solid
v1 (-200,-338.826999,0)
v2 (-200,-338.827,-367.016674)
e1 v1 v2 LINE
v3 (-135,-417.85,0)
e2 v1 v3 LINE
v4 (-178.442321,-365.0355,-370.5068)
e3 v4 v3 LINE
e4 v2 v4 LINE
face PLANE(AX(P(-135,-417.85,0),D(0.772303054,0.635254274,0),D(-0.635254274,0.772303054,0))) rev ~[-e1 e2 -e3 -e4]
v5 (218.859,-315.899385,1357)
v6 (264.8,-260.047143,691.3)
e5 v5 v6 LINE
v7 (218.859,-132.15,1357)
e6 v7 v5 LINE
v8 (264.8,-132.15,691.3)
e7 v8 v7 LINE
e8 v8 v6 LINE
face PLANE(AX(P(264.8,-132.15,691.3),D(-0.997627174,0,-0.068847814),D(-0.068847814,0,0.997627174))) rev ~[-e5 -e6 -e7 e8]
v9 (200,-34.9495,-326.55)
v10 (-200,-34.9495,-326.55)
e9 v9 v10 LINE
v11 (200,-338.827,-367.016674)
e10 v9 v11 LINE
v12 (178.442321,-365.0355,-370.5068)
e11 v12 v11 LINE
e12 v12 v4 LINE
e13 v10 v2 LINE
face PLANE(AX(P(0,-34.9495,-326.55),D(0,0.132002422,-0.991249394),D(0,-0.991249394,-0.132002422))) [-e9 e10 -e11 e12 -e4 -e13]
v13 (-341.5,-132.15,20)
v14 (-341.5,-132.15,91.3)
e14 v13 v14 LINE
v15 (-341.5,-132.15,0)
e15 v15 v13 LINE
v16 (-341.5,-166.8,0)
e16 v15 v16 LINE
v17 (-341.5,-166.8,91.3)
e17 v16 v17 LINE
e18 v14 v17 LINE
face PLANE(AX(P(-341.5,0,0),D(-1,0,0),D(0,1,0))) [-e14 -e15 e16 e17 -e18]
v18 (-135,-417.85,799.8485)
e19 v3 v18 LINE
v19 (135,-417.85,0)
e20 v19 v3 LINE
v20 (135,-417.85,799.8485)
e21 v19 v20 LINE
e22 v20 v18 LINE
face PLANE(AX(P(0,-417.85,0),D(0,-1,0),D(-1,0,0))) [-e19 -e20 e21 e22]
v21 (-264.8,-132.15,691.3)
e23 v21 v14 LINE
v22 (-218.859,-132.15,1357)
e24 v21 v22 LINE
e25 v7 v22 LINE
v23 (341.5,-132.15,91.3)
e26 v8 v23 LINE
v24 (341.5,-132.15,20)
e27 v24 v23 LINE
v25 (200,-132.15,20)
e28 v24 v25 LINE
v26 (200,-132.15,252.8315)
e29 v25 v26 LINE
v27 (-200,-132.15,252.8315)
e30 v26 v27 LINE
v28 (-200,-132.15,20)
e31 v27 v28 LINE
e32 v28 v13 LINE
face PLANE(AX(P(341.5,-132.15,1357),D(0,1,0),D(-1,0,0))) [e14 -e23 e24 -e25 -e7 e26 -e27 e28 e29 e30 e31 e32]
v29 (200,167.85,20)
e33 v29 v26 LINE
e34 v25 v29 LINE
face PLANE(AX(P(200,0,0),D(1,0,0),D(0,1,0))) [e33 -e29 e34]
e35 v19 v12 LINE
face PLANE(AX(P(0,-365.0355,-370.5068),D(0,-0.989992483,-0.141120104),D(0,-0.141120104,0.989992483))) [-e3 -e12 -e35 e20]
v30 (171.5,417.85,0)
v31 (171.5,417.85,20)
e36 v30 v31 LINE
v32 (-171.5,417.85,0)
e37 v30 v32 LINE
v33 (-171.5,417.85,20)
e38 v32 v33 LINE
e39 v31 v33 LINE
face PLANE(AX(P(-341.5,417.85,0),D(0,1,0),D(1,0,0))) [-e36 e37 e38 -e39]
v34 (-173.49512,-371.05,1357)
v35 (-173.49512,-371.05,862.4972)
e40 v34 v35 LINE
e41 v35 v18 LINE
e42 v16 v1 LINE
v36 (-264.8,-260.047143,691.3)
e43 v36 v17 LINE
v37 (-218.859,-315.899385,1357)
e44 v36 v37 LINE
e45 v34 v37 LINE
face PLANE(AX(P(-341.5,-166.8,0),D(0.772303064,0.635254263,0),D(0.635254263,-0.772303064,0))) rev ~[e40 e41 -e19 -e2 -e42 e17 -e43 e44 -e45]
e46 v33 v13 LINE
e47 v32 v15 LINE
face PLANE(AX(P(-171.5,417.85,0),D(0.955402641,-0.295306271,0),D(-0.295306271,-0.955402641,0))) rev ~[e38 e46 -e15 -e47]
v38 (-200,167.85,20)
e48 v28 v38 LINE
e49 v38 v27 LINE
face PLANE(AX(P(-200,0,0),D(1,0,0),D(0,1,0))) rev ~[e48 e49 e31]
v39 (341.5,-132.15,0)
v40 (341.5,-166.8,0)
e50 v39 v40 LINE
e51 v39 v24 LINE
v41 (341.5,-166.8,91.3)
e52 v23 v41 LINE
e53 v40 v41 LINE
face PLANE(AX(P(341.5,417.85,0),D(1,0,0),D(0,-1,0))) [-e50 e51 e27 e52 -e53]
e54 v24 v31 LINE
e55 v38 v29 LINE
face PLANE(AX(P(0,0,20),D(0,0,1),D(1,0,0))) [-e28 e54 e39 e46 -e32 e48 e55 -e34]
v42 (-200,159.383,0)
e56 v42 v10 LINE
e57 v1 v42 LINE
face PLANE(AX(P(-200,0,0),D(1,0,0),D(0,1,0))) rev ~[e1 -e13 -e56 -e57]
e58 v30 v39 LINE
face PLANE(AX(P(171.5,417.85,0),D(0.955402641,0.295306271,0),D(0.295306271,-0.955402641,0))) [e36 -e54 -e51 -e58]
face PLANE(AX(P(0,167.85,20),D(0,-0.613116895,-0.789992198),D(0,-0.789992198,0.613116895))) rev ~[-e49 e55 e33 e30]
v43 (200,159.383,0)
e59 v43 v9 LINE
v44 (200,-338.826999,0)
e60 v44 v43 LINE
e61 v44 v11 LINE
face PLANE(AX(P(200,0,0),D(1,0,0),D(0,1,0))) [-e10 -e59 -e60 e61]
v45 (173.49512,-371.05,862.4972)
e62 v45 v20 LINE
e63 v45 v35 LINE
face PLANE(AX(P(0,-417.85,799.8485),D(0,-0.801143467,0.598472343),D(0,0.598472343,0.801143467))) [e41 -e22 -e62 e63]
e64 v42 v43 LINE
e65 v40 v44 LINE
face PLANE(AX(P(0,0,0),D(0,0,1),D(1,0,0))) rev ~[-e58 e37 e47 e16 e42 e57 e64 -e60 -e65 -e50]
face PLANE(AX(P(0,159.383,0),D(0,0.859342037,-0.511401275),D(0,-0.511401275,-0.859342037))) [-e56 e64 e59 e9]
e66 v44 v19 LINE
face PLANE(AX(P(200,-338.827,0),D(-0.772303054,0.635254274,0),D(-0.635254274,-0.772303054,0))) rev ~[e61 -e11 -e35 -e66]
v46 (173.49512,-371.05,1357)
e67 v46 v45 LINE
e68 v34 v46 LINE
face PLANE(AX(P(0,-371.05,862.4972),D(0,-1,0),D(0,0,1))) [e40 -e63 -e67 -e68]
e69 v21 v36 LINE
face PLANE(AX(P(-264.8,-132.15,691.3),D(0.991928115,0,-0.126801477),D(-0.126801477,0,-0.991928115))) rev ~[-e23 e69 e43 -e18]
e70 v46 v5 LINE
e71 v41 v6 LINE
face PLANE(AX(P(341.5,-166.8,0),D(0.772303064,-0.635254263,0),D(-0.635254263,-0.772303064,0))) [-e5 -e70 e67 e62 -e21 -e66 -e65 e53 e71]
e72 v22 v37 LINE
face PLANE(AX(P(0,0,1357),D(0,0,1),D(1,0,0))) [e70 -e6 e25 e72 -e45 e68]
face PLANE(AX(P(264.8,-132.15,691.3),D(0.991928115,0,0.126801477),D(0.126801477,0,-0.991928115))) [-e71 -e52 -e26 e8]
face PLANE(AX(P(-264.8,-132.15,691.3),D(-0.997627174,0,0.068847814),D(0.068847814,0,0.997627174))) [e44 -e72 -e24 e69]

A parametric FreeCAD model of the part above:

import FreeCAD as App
import Part
import Sketcher

V = App.Vector
Q = App.Units.Quantity

doc = App.newDocument("Part")
body = doc.addObject("PartDesign::Body", "Body")

# Sketch on XY plane
sketch1 = doc.addObject("Sketcher::SketchObject", "Sketch")
body.addObject(sketch1)
sketch1.AttachmentSupport = (doc.XY_Plane, [""])
sketch1.MapMode = "FlatFace"
sketch1.addGeometry(Part.LineSegment(V(-342, 418, 0), V(-342, -418, 0)), False)
sketch1.addGeometry(Part.LineSegment(V(-342, -418, 0), V(342, -418, 0)), False)
sketch1.addGeometry(Part.LineSegment(V(342, -418, 0), V(342, 418, 0)), False)
sketch1.addGeometry(Part.LineSegment(V(342, 418, 0), V(-342, 418, 0)), False)
sketch1.addConstraint(Sketcher.Constraint("Coincident", 0, 2, 1, 1))
sketch1.addConstraint(Sketcher.Constraint("Coincident", 1, 2, 2, 1))
sketch1.addConstraint(Sketcher.Constraint("Coincident", 2, 2, 3, 1))
sketch1.addConstraint(Sketcher.Constraint("Coincident", 3, 2, 0, 1))
sketch1.addConstraint(Sketcher.Constraint("Vertical", 0))
sketch1.addConstraint(Sketcher.Constraint("Horizontal", 1))
sketch1.addConstraint(Sketcher.Constraint("Vertical", 2))
sketch1.addConstraint(Sketcher.Constraint("Horizontal", 3))
sketch1.addConstraint(Sketcher.Constraint("Symmetric", 0, 2, 2, 2, -1, 1))
sketch1.addConstraint(Sketcher.Constraint("DistanceX", 1, 1, 1, 2, Q("683 mm")))
sketch1.addConstraint(Sketcher.Constraint("DistanceY", 0, 2, 0, 1, Q("835.7 mm")))
pad1 = doc.addObject("PartDesign::Pad", "Pad")
body.addObject(pad1)
pad1.Profile = sketch1
pad1.Length = 1357

# Sketch on XY plane
sketch2 = doc.addObject("Sketcher::SketchObject", "Sketch001")
body.addObject(sketch2)
sketch2.AttachmentSupport = (doc.XY_Plane, [""])
sketch2.MapMode = "FlatFace"
sketch2.addGeometry(Part.LineSegment(V(-342, -132, 0), V(-172, 418, 0)), False)
sketch2.addGeometry(Part.LineSegment(V(-172, 418, 0), V(-342, 418, 0)), False)
sketch2.addGeometry(Part.LineSegment(V(-342, 418, 0), V(-342, -132, 0)), False)
sketch2.addGeometry(Part.LineSegment(V(342, 418, 0), V(172, 418, 0)), False)
sketch2.addGeometry(Part.LineSegment(V(172, 418, 0), V(342, -132, 0)), False)
sketch2.addGeometry(Part.LineSegment(V(342, -132, 0), V(342, 418, 0)), False)
sketch2.addGeometry(Part.LineSegment(V(-135, -418, 0), V(-342, -167, 0)), False)
sketch2.addGeometry(Part.LineSegment(V(-342, -167, 0), V(-342, -418, 0)), False)
sketch2.addGeometry(Part.LineSegment(V(-342, -418, 0), V(-135, -418, 0)), False)
sketch2.addGeometry(Part.LineSegment(V(342, -167, 0), V(135, -418, 0)), False)
sketch2.addGeometry(Part.LineSegment(V(135, -418, 0), V(342, -418, 0)), False)
sketch2.addGeometry(Part.LineSegment(V(342, -418, 0), V(342, -167, 0)), False)
sketch2.addConstraint(Sketcher.Constraint("Coincident", 0, 2, 1, 1))
sketch2.addConstraint(Sketcher.Constraint("Coincident", 1, 2, 2, 1))
sketch2.addConstraint(Sketcher.Constraint("Coincident", 2, 2, 0, 1))
sketch2.addConstraint(Sketcher.Constraint("Coincident", 3, 2, 4, 1))
sketch2.addConstraint(Sketcher.Constraint("Coincident", 4, 2, 5, 1))
sketch2.addConstraint(Sketcher.Constraint("Coincident", 5, 2, 3, 1))
sketch2.addConstraint(Sketcher.Constraint("Coincident", 6, 2, 7, 1))
sketch2.addConstraint(Sketcher.Constraint("Coincident", 7, 2, 8, 1))
sketch2.addConstraint(Sketcher.Constraint("Coincident", 8, 2, 6, 1))
sketch2.addConstraint(Sketcher.Constraint("Coincident", 9, 2, 10, 1))
sketch2.addConstraint(Sketcher.Constraint("Coincident", 10, 2, 11, 1))
sketch2.addConstraint(Sketcher.Constraint("Coincident", 11, 2, 9, 1))
sketch2.addConstraint(Sketcher.Constraint("Horizontal", 1))
sketch2.addConstraint(Sketcher.Constraint("Vertical", 2))
sketch2.addConstraint(Sketcher.Constraint("Horizontal", 3))
sketch2.addConstraint(Sketcher.Constraint("Vertical", 5))
sketch2.addConstraint(Sketcher.Constraint("Vertical", 7))
sketch2.addConstraint(Sketcher.Constraint("Horizontal", 8))
sketch2.addConstraint(Sketcher.Constraint("Horizontal", 10))
sketch2.addConstraint(Sketcher.Constraint("Vertical", 11))
sketch2.addConstraint(Sketcher.Constraint("Symmetric", 5, 2, 7, 2, -1, 1))
sketch2.addConstraint(Sketcher.Constraint("Symmetric", 1, 2, 10, 2, -1, 1))
sketch2.addConstraint(Sketcher.Constraint("Symmetric", 0, 2, 3, 2, -2))
sketch2.addConstraint(Sketcher.Constraint("Symmetric", 2, 2, 4, 2, -2))
sketch2.addConstraint(Sketcher.Constraint("Horizontal", 6, 2, 11, 2))
sketch2.addConstraint(Sketcher.Constraint("Equal", 8, 10))
sketch2.addConstraint(Sketcher.Constraint("DistanceY", 2, 2, 2, 1, Q("550 mm")))
sketch2.addConstraint(Sketcher.Constraint("DistanceX", 8, 1, 8, 2, Q("206.5 mm")))
sketch2.addConstraint(Sketcher.Constraint("DistanceX", 0, 2, 3, 2, Q("343 mm")))
sketch2.addConstraint(Sketcher.Constraint("DistanceX", 1, 2, 1, 1, Q("170 mm")))
sketch2.addConstraint(Sketcher.Constraint("DistanceY", 6, 2, 2, 2, Q("34.65 mm")))
sketch2.addConstraint(Sketcher.Constraint("DistanceY", 7, 2, 7, 1, Q("251.05 mm")))
pocket1 = doc.addObject("PartDesign::Pocket", "Pocket")
body.addObject(pocket1)
pocket1.Profile = sketch2
pocket1.Type = "ThroughAll"
pocket1.Reversed = True

# Sketch on XY plane
sketch3 = doc.addObject("Sketcher::SketchObject", "Sketch002")
body.addObject(sketch3)
sketch3.AttachmentSupport = (doc.XY_Plane, [""])
sketch3.MapMode = "FlatFace"
sketch3.AttachmentOffset = App.Placement(V(0, 0, 1357), App.Rotation())
sketch3.addGeometry(Part.LineSegment(V(172, 418, 0), V(-172, 418, 0)), False)
sketch3.addGeometry(Part.LineSegment(V(-172, 418, 0), V(-342, -132, 0)), False)
sketch3.addGeometry(Part.LineSegment(V(-342, -132, 0), V(342, -132, 0)), False)
sketch3.addGeometry(Part.LineSegment(V(342, -132, 0), V(172, 418, 0)), False)
sketch3.addConstraint(Sketcher.Constraint("Coincident", 0, 2, 1, 1))
sketch3.addConstraint(Sketcher.Constraint("Coincident", 1, 2, 2, 1))
sketch3.addConstraint(Sketcher.Constraint("Coincident", 2, 2, 3, 1))
sketch3.addConstraint(Sketcher.Constraint("Coincident", 3, 2, 0, 1))
sketch3.addConstraint(Sketcher.Constraint("Horizontal", 0))
sketch3.addConstraint(Sketcher.Constraint("Horizontal", 2))
sketch3.addConstraint(Sketcher.Constraint("Equal", 1, 3))
sketch3.addConstraint(Sketcher.Constraint("DistanceX", 0, 2, 0, 1, Q("343 mm")))
sketch3.addConstraint(Sketcher.Constraint("DistanceX", 2, 1, 2, 2, Q("683 mm")))
sketch3.addConstraint(Sketcher.Constraint("DistanceY", 1, 2, 0, 2, Q("550 mm")))
sketch3.addConstraint(Sketcher.Constraint("DistanceX", 0, 2, -1, 1, Q("171.5 mm")))
sketch3.addConstraint(Sketcher.Constraint("DistanceY", -1, 1, 0, 2, Q("417.85 mm")))
pocket2 = doc.addObject("PartDesign::Pocket", "Pocket001")
body.addObject(pocket2)
pocket2.Profile = sketch3
pocket2.Length = 1337

# Sketch on XZ plane
sketch4 = doc.addObject("Sketcher::SketchObject", "Sketch003")
body.addObject(sketch4)
sketch4.AttachmentSupport = (doc.XZ_Plane, [""])
sketch4.MapMode = "FlatFace"
sketch4.AttachmentOffset = App.Placement(V(0, 0, 132.15), App.Rotation())
sketch4.addGeometry(Part.LineSegment(V(-265, 691, 0), V(-342, 91, 0)), False)
sketch4.addGeometry(Part.LineSegment(V(-342, 91, 0), V(-342, 1357, 0)), False)
sketch4.addGeometry(Part.LineSegment(V(-342, 1357, 0), V(-219, 1357, 0)), False)
sketch4.addGeometry(Part.LineSegment(V(-219, 1357, 0), V(-265, 691, 0)), False)
sketch4.addGeometry(Part.LineSegment(V(265, 691, 0), V(219, 1357, 0)), False)
sketch4.addGeometry(Part.LineSegment(V(219, 1357, 0), V(342, 1357, 0)), False)
sketch4.addGeometry(Part.LineSegment(V(342, 1357, 0), V(342, 91, 0)), False)
sketch4.addGeometry(Part.LineSegment(V(342, 91, 0), V(265, 691, 0)), False)
sketch4.addConstraint(Sketcher.Constraint("Coincident", 0, 2, 1, 1))
sketch4.addConstraint(Sketcher.Constraint("Coincident", 1, 2, 2, 1))
sketch4.addConstraint(Sketcher.Constraint("Coincident", 2, 2, 3, 1))
sketch4.addConstraint(Sketcher.Constraint("Coincident", 3, 2, 0, 1))
sketch4.addConstraint(Sketcher.Constraint("Coincident", 4, 2, 5, 1))
sketch4.addConstraint(Sketcher.Constraint("Coincident", 5, 2, 6, 1))
sketch4.addConstraint(Sketcher.Constraint("Coincident", 6, 2, 7, 1))
sketch4.addConstraint(Sketcher.Constraint("Coincident", 7, 2, 4, 1))
sketch4.addConstraint(Sketcher.Constraint("Vertical", 1))
sketch4.addConstraint(Sketcher.Constraint("Horizontal", 2))
sketch4.addConstraint(Sketcher.Constraint("Horizontal", 5))
sketch4.addConstraint(Sketcher.Constraint("Vertical", 6))
sketch4.addConstraint(Sketcher.Constraint("Symmetric", 2, 2, 4, 2, -2))
sketch4.addConstraint(Sketcher.Constraint("Symmetric", 0, 2, 6, 2, -2))
sketch4.addConstraint(Sketcher.Constraint("Symmetric", 3, 2, 7, 2, -2))
sketch4.addConstraint(Sketcher.Constraint("DistanceY", 0, 2, 3, 2, Q("600 mm")))
sketch4.addConstraint(Sketcher.Constraint("DistanceY", -1, 1, 0, 2, Q("91.3 mm")))
sketch4.addConstraint(Sketcher.Constraint("DistanceX", 0, 2, 3, 2, Q("76.7 mm")))
sketch4.addConstraint(Sketcher.Constraint("DistanceY", 1, 1, 1, 2, Q("1265.7 mm")))
sketch4.addConstraint(Sketcher.Constraint("DistanceX", 3, 2, 2, 2, Q("45.941 mm")))
sketch4.addConstraint(Sketcher.Constraint("DistanceX", 1, 2, 5, 2, Q("683 mm")))
pocket3 = doc.addObject("PartDesign::Pocket", "Pocket002")
body.addObject(pocket3)
pocket3.Profile = sketch4
pocket3.Type = "ThroughAll"
pocket3.Reversed = True

# Sketch on YZ plane
sketch5 = doc.addObject("Sketcher::SketchObject", "Sketch004")
body.addObject(sketch5)
sketch5.AttachmentSupport = (doc.YZ_Plane, [""])
sketch5.MapMode = "FlatFace"
sketch5.addGeometry(Part.LineSegment(V(-371, 862, 0), V(-371, 1357, 0)), False)
sketch5.addGeometry(Part.LineSegment(V(-371, 1357, 0), V(-418, 1357, 0)), False)
sketch5.addGeometry(Part.LineSegment(V(-418, 1357, 0), V(-418, 800, 0)), False)
sketch5.addGeometry(Part.LineSegment(V(-418, 800, 0), V(-371, 862, 0)), False)
sketch5.addConstraint(Sketcher.Constraint("Coincident", 0, 2, 1, 1))
sketch5.addConstraint(Sketcher.Constraint("Coincident", 1, 2, 2, 1))
sketch5.addConstraint(Sketcher.Constraint("Coincident", 2, 2, 3, 1))
sketch5.addConstraint(Sketcher.Constraint("Coincident", 3, 2, 0, 1))
sketch5.addConstraint(Sketcher.Constraint("Vertical", 0))
sketch5.addConstraint(Sketcher.Constraint("Horizontal", 1))
sketch5.addConstraint(Sketcher.Constraint("Vertical", 2))
sketch5.addConstraint(Sketcher.Constraint("DistanceX", 1, 2, 1, 1, Q("46.8 mm")))
sketch5.addConstraint(Sketcher.Constraint("DistanceY", -1, 1, 0, 2, Q("1357 mm")))
sketch5.addConstraint(Sketcher.Constraint("Angle", 3, Q("53.2394 deg")))
sketch5.addConstraint(Sketcher.Constraint("DistanceX", 0, 2, -1, 1, Q("371.05 mm")))
sketch5.addConstraint(Sketcher.Constraint("DistanceY", 0, 1, 0, 2, Q("494.5028 mm")))
pocket4 = doc.addObject("PartDesign::Pocket", "Pocket003")
body.addObject(pocket4)
pocket4.Profile = sketch5
pocket4.Type = "ThroughAll"
pocket4.Midplane = True

# Sketch on YZ plane
sketch6 = doc.addObject("Sketcher::SketchObject", "Sketch005")
body.addObject(sketch6)
sketch6.AttachmentSupport = (doc.YZ_Plane, [""])
sketch6.MapMode = "FlatFace"
sketch6.addGeometry(Part.LineSegment(V(-132, 253, 0), V(-132, 20, 0)), False)
sketch6.addGeometry(Part.LineSegment(V(-132, 20, 0), V(168, 20, 0)), False)
sketch6.addGeometry(Part.LineSegment(V(168, 20, 0), V(-132, 253, 0)), False)
sketch6.addConstraint(Sketcher.Constraint("Coincident", 0, 2, 1, 1))
sketch6.addConstraint(Sketcher.Constraint("Coincident", 1, 2, 2, 1))
sketch6.addConstraint(Sketcher.Constraint("Coincident", 2, 2, 0, 1))
sketch6.addConstraint(Sketcher.Constraint("Vertical", 0))
sketch6.addConstraint(Sketcher.Constraint("Horizontal", 1))
sketch6.addConstraint(Sketcher.Constraint("DistanceX", 1, 1, 1, 2, Q("300 mm")))
sketch6.addConstraint(Sketcher.Constraint("DistanceY", -1, 1, 0, 2, Q("20 mm")))
sketch6.addConstraint(Sketcher.Constraint("DistanceX", 0, 2, -1, 1, Q("132.15 mm")))
sketch6.addConstraint(Sketcher.Constraint("DistanceY", 0, 2, 0, 1, Q("232.8315 mm")))
pad2 = doc.addObject("PartDesign::Pad", "Pad001")
body.addObject(pad2)
pad2.Profile = sketch6
pad2.Length = 400
pad2.Midplane = True

# Sketch on YZ plane
sketch7 = doc.addObject("Sketcher::SketchObject", "Sketch006")
body.addObject(sketch7)
sketch7.AttachmentSupport = (doc.YZ_Plane, [""])
sketch7.MapMode = "FlatFace"
sketch7.addGeometry(Part.LineSegment(V(-35, -327, 0), V(159, 0, 0)), False)
sketch7.addGeometry(Part.LineSegment(V(159, 0, 0), V(-418, 0, 0)), False)
sketch7.addGeometry(Part.LineSegment(V(-418, 0, 0), V(-365, -371, 0)), False)
sketch7.addGeometry(Part.LineSegment(V(-365, -371, 0), V(-35, -327, 0)), False)
sketch7.addConstraint(Sketcher.Constraint("Coincident", 0, 2, 1, 1))
sketch7.addConstraint(Sketcher.Constraint("Coincident", 1, 2, 2, 1))
sketch7.addConstraint(Sketcher.Constraint("Coincident", 2, 2, 3, 1))
sketch7.addConstraint(Sketcher.Constraint("Coincident", 3, 2, 0, 1))
sketch7.addConstraint(Sketcher.Constraint("Horizontal", 1))
sketch7.addConstraint(Sketcher.Constraint("PointOnObject", 0, 2, -1))
sketch7.addConstraint(Sketcher.Constraint("Distance", 0, Q("380 mm")))
sketch7.addConstraint(Sketcher.Constraint("Distance", 3, Q("333 mm")))
sketch7.addConstraint(Sketcher.Constraint("DistanceX", 1, 2, 1, 1, Q("577.233 mm")))
sketch7.addConstraint(Sketcher.Constraint("DistanceX", 1, 2, -1, 1, Q("417.85 mm")))
sketch7.addConstraint(Sketcher.Constraint("DistanceY", 3, 2, -1, 1, Q("326.55 mm")))
sketch7.addConstraint(Sketcher.Constraint("DistanceX", 2, 2, 3, 2, Q("330.086 mm")))
pad3 = doc.addObject("PartDesign::Pad", "Pad002")
body.addObject(pad3)
pad3.Profile = sketch7
pad3.Length = 400
pad3.Midplane = True

# Sketch on XY plane
sketch8 = doc.addObject("Sketcher::SketchObject", "Sketch007")
body.addObject(sketch8)
sketch8.AttachmentSupport = (doc.XY_Plane, [""])
sketch8.MapMode = "FlatFace"
sketch8.addGeometry(Part.LineSegment(V(-200, -339, 0), V(-200, -418, 0)), False)
sketch8.addGeometry(Part.LineSegment(V(-200, -418, 0), V(-135, -418, 0)), False)
sketch8.addGeometry(Part.LineSegment(V(-135, -418, 0), V(-200, -339, 0)), False)
sketch8.addGeometry(Part.LineSegment(V(200, -418, 0), V(200, -339, 0)), False)
sketch8.addGeometry(Part.LineSegment(V(200, -339, 0), V(135, -418, 0)), False)
sketch8.addGeometry(Part.LineSegment(V(135, -418, 0), V(200, -418, 0)), False)
sketch8.addConstraint(Sketcher.Constraint("Coincident", 0, 2, 1, 1))
sketch8.addConstraint(Sketcher.Constraint("Coincident", 1, 2, 2, 1))
sketch8.addConstraint(Sketcher.Constraint("Coincident", 2, 2, 0, 1))
sketch8.addConstraint(Sketcher.Constraint("Coincident", 3, 2, 4, 1))
sketch8.addConstraint(Sketcher.Constraint("Coincident", 4, 2, 5, 1))
sketch8.addConstraint(Sketcher.Constraint("Coincident", 5, 2, 3, 1))
sketch8.addConstraint(Sketcher.Constraint("Vertical", 0))
sketch8.addConstraint(Sketcher.Constraint("Horizontal", 1))
sketch8.addConstraint(Sketcher.Constraint("Vertical", 3))
sketch8.addConstraint(Sketcher.Constraint("Horizontal", 5))
sketch8.addConstraint(Sketcher.Constraint("Symmetric", 2, 2, 3, 2, -2))
sketch8.addConstraint(Sketcher.Constraint("Symmetric", 1, 2, 4, 2, -2))
sketch8.addConstraint(Sketcher.Constraint("DistanceX", 1, 1, 1, 2, Q("65 mm")))
sketch8.addConstraint(Sketcher.Constraint("DistanceX", 0, 2, -1, 1, Q("200 mm")))
sketch8.addConstraint(Sketcher.Constraint("Angle", 2, Q("129.4388 deg")))
sketch8.addConstraint(Sketcher.Constraint("DistanceY", 0, 2, -1, 1, Q("417.85 mm")))
pocket5 = doc.addObject("PartDesign::Pocket", "Pocket004")
body.addObject(pocket5)
pocket5.Profile = sketch8
pocket5.Type = "ThroughAll"

doc.recompute()
